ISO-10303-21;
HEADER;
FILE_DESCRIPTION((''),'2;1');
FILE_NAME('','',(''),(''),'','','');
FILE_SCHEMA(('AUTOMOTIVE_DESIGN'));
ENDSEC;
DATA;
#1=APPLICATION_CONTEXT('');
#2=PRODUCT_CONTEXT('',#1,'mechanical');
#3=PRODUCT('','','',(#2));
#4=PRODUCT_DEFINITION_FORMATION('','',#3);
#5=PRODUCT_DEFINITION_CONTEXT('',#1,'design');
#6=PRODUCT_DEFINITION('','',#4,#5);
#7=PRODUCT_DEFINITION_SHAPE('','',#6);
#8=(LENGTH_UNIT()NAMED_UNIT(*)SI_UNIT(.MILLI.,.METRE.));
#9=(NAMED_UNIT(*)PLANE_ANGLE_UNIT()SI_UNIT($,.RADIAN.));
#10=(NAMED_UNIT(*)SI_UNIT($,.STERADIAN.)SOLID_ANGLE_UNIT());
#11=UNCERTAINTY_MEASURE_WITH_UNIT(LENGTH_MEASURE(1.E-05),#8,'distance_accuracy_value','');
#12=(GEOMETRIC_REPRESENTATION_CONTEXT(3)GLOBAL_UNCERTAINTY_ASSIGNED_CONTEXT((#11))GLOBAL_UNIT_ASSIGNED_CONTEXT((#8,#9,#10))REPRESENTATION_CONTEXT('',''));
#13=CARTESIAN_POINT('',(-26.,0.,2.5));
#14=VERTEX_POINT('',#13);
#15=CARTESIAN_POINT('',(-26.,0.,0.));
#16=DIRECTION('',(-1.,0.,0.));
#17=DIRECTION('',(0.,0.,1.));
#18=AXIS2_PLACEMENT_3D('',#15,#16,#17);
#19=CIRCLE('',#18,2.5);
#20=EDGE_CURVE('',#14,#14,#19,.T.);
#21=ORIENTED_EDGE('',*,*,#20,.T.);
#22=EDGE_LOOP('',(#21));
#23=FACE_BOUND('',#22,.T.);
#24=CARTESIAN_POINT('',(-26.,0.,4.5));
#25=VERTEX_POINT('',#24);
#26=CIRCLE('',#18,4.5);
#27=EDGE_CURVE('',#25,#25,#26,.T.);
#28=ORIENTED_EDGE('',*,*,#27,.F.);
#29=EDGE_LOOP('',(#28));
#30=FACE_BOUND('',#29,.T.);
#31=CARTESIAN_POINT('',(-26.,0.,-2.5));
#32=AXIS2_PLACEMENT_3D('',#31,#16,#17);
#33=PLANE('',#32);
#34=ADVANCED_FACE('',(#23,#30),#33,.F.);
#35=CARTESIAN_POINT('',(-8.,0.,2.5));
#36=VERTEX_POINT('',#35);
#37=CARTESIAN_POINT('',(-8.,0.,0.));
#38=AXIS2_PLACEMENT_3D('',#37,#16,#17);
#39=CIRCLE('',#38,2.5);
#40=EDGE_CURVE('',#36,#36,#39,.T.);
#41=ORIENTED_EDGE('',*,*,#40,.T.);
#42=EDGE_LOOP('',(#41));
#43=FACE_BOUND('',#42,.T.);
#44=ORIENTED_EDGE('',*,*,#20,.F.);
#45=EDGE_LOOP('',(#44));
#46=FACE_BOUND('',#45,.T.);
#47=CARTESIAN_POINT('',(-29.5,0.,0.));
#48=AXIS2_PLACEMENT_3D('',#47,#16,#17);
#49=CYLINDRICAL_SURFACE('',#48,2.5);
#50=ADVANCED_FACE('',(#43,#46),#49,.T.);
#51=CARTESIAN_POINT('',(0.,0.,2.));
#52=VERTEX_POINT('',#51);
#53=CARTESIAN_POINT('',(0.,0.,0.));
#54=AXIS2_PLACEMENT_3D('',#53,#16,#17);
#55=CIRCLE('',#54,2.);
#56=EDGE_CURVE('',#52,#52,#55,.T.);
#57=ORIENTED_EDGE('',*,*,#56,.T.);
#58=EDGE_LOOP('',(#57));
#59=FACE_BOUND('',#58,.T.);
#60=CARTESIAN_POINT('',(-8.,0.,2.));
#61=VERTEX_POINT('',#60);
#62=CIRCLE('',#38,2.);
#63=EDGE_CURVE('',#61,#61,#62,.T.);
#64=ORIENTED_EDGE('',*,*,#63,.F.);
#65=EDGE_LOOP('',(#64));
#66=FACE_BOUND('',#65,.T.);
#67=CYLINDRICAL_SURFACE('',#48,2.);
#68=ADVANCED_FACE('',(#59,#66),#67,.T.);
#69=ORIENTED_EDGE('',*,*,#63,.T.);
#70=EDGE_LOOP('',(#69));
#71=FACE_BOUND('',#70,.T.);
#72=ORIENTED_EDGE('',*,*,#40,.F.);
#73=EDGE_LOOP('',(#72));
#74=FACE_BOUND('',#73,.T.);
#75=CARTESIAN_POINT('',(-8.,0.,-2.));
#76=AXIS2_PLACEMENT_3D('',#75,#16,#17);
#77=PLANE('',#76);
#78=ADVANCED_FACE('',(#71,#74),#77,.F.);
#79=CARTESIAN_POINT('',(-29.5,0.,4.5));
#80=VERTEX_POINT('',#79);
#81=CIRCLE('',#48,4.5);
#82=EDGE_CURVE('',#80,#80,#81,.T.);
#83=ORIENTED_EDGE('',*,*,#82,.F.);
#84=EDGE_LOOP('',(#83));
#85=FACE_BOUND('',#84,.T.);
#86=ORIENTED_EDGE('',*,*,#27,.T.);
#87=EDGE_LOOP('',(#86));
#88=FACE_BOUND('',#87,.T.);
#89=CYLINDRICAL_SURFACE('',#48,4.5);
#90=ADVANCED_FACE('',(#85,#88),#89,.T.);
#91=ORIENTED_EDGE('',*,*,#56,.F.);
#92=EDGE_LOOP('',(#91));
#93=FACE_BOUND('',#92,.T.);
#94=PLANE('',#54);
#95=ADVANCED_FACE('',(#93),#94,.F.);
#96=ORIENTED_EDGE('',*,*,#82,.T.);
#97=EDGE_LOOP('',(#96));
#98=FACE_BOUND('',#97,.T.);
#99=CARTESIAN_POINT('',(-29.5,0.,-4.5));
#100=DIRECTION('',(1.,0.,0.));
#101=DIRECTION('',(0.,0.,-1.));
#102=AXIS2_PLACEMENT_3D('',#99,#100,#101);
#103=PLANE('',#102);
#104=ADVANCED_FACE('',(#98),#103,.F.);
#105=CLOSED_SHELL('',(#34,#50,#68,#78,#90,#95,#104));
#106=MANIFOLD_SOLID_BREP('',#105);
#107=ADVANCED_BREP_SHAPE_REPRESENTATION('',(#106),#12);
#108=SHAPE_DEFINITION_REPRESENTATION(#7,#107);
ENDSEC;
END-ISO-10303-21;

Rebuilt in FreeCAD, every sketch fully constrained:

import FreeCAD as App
import Part
import Sketcher

V = App.Vector


def add_polygon(sketch, points):
    """Adds a closed chain of lines whose ends are joined by coincident constraints."""
    first, n = sketch.GeometryCount, len(points)
    for a, b in zip(points, points[1:] + points[:1]):
        sketch.addGeometry(Part.LineSegment(App.Vector(*a, 0), App.Vector(*b, 0)), False)
    for i in range(n):
        sketch.addConstraint(Sketcher.Constraint("Coincident", first + i, 2, first + (i + 1) % n, 1))

doc = App.newDocument("Part")
params = doc.addObject("Spreadsheet::Sheet", "Params")
for row, (alias, value) in enumerate([
    ("sketch1_width", "8 mm"),
    ("sketch1_width2", "18 mm"),
    ("sketch1_height", "2 mm"),
    ("sketch1_width3", "3.5 mm"),
    ("sketch1_height2", "0.5 mm"),
    ("revolution_angle", "360 deg"),
], start=1):
    params.set(f"A{row}", alias)
    params.set(f"B{row}", "=" + value)
    params.setAlias(f"B{row}", alias)

body = doc.addObject("PartDesign::Body", "Body")

sketch1 = body.newObject("Sketcher::SketchObject", "Sketch")
sketch1.AttachmentSupport = (doc.getObject("XZ_Plane"), [""])
sketch1.MapMode = "FlatFace"
add_polygon(sketch1, [(0, 0), (0, -2), (-8, -2), (-8, -2.5), (-26, -2.5), (-26, -4.5), (-29.5, -4.5), (-29.5, 0)])
sketch1.addConstraint([
    Sketcher.Constraint("Vertical", 0),
    Sketcher.Constraint("Horizontal", 1),
    Sketcher.Constraint("Vertical", 2),
    Sketcher.Constraint("Horizontal", 3),
    Sketcher.Constraint("Vertical", 4),
    Sketcher.Constraint("Horizontal", 5),
    Sketcher.Constraint("Vertical", 6),
    Sketcher.Constraint("Horizontal", 7),
    Sketcher.Constraint("Coincident", 7, 2, -1, 1),
    Sketcher.Constraint("Equal", 0, 4),
    Sketcher.Constraint("DistanceX", 1, 2, 1, 1, 8.0),
    Sketcher.Constraint("DistanceX", 3, 2, 3, 1, 18.0),
    Sketcher.Constraint("DistanceY", 0, 2, 0, 1, 2.0),
    Sketcher.Constraint("DistanceX", 5, 2, 5, 1, 3.5),
    Sketcher.Constraint("DistanceY", 2, 2, 2, 1, 0.5),
])
sketch1.setExpression("Constraints[18]", "Params.sketch1_width")
sketch1.setExpression("Constraints[19]", "Params.sketch1_width2")
sketch1.setExpression("Constraints[20]", "Params.sketch1_height")
sketch1.setExpression("Constraints[21]", "Params.sketch1_width3")
sketch1.setExpression("Constraints[22]", "Params.sketch1_height2")
revolution = body.newObject("PartDesign::Revolution", "Revolution")
revolution.Profile = sketch1
revolution.ReferenceAxis = (sketch1, ["H_Axis"])
revolution.setExpression("Angle", "Params.revolution_angle")

doc.recompute()
